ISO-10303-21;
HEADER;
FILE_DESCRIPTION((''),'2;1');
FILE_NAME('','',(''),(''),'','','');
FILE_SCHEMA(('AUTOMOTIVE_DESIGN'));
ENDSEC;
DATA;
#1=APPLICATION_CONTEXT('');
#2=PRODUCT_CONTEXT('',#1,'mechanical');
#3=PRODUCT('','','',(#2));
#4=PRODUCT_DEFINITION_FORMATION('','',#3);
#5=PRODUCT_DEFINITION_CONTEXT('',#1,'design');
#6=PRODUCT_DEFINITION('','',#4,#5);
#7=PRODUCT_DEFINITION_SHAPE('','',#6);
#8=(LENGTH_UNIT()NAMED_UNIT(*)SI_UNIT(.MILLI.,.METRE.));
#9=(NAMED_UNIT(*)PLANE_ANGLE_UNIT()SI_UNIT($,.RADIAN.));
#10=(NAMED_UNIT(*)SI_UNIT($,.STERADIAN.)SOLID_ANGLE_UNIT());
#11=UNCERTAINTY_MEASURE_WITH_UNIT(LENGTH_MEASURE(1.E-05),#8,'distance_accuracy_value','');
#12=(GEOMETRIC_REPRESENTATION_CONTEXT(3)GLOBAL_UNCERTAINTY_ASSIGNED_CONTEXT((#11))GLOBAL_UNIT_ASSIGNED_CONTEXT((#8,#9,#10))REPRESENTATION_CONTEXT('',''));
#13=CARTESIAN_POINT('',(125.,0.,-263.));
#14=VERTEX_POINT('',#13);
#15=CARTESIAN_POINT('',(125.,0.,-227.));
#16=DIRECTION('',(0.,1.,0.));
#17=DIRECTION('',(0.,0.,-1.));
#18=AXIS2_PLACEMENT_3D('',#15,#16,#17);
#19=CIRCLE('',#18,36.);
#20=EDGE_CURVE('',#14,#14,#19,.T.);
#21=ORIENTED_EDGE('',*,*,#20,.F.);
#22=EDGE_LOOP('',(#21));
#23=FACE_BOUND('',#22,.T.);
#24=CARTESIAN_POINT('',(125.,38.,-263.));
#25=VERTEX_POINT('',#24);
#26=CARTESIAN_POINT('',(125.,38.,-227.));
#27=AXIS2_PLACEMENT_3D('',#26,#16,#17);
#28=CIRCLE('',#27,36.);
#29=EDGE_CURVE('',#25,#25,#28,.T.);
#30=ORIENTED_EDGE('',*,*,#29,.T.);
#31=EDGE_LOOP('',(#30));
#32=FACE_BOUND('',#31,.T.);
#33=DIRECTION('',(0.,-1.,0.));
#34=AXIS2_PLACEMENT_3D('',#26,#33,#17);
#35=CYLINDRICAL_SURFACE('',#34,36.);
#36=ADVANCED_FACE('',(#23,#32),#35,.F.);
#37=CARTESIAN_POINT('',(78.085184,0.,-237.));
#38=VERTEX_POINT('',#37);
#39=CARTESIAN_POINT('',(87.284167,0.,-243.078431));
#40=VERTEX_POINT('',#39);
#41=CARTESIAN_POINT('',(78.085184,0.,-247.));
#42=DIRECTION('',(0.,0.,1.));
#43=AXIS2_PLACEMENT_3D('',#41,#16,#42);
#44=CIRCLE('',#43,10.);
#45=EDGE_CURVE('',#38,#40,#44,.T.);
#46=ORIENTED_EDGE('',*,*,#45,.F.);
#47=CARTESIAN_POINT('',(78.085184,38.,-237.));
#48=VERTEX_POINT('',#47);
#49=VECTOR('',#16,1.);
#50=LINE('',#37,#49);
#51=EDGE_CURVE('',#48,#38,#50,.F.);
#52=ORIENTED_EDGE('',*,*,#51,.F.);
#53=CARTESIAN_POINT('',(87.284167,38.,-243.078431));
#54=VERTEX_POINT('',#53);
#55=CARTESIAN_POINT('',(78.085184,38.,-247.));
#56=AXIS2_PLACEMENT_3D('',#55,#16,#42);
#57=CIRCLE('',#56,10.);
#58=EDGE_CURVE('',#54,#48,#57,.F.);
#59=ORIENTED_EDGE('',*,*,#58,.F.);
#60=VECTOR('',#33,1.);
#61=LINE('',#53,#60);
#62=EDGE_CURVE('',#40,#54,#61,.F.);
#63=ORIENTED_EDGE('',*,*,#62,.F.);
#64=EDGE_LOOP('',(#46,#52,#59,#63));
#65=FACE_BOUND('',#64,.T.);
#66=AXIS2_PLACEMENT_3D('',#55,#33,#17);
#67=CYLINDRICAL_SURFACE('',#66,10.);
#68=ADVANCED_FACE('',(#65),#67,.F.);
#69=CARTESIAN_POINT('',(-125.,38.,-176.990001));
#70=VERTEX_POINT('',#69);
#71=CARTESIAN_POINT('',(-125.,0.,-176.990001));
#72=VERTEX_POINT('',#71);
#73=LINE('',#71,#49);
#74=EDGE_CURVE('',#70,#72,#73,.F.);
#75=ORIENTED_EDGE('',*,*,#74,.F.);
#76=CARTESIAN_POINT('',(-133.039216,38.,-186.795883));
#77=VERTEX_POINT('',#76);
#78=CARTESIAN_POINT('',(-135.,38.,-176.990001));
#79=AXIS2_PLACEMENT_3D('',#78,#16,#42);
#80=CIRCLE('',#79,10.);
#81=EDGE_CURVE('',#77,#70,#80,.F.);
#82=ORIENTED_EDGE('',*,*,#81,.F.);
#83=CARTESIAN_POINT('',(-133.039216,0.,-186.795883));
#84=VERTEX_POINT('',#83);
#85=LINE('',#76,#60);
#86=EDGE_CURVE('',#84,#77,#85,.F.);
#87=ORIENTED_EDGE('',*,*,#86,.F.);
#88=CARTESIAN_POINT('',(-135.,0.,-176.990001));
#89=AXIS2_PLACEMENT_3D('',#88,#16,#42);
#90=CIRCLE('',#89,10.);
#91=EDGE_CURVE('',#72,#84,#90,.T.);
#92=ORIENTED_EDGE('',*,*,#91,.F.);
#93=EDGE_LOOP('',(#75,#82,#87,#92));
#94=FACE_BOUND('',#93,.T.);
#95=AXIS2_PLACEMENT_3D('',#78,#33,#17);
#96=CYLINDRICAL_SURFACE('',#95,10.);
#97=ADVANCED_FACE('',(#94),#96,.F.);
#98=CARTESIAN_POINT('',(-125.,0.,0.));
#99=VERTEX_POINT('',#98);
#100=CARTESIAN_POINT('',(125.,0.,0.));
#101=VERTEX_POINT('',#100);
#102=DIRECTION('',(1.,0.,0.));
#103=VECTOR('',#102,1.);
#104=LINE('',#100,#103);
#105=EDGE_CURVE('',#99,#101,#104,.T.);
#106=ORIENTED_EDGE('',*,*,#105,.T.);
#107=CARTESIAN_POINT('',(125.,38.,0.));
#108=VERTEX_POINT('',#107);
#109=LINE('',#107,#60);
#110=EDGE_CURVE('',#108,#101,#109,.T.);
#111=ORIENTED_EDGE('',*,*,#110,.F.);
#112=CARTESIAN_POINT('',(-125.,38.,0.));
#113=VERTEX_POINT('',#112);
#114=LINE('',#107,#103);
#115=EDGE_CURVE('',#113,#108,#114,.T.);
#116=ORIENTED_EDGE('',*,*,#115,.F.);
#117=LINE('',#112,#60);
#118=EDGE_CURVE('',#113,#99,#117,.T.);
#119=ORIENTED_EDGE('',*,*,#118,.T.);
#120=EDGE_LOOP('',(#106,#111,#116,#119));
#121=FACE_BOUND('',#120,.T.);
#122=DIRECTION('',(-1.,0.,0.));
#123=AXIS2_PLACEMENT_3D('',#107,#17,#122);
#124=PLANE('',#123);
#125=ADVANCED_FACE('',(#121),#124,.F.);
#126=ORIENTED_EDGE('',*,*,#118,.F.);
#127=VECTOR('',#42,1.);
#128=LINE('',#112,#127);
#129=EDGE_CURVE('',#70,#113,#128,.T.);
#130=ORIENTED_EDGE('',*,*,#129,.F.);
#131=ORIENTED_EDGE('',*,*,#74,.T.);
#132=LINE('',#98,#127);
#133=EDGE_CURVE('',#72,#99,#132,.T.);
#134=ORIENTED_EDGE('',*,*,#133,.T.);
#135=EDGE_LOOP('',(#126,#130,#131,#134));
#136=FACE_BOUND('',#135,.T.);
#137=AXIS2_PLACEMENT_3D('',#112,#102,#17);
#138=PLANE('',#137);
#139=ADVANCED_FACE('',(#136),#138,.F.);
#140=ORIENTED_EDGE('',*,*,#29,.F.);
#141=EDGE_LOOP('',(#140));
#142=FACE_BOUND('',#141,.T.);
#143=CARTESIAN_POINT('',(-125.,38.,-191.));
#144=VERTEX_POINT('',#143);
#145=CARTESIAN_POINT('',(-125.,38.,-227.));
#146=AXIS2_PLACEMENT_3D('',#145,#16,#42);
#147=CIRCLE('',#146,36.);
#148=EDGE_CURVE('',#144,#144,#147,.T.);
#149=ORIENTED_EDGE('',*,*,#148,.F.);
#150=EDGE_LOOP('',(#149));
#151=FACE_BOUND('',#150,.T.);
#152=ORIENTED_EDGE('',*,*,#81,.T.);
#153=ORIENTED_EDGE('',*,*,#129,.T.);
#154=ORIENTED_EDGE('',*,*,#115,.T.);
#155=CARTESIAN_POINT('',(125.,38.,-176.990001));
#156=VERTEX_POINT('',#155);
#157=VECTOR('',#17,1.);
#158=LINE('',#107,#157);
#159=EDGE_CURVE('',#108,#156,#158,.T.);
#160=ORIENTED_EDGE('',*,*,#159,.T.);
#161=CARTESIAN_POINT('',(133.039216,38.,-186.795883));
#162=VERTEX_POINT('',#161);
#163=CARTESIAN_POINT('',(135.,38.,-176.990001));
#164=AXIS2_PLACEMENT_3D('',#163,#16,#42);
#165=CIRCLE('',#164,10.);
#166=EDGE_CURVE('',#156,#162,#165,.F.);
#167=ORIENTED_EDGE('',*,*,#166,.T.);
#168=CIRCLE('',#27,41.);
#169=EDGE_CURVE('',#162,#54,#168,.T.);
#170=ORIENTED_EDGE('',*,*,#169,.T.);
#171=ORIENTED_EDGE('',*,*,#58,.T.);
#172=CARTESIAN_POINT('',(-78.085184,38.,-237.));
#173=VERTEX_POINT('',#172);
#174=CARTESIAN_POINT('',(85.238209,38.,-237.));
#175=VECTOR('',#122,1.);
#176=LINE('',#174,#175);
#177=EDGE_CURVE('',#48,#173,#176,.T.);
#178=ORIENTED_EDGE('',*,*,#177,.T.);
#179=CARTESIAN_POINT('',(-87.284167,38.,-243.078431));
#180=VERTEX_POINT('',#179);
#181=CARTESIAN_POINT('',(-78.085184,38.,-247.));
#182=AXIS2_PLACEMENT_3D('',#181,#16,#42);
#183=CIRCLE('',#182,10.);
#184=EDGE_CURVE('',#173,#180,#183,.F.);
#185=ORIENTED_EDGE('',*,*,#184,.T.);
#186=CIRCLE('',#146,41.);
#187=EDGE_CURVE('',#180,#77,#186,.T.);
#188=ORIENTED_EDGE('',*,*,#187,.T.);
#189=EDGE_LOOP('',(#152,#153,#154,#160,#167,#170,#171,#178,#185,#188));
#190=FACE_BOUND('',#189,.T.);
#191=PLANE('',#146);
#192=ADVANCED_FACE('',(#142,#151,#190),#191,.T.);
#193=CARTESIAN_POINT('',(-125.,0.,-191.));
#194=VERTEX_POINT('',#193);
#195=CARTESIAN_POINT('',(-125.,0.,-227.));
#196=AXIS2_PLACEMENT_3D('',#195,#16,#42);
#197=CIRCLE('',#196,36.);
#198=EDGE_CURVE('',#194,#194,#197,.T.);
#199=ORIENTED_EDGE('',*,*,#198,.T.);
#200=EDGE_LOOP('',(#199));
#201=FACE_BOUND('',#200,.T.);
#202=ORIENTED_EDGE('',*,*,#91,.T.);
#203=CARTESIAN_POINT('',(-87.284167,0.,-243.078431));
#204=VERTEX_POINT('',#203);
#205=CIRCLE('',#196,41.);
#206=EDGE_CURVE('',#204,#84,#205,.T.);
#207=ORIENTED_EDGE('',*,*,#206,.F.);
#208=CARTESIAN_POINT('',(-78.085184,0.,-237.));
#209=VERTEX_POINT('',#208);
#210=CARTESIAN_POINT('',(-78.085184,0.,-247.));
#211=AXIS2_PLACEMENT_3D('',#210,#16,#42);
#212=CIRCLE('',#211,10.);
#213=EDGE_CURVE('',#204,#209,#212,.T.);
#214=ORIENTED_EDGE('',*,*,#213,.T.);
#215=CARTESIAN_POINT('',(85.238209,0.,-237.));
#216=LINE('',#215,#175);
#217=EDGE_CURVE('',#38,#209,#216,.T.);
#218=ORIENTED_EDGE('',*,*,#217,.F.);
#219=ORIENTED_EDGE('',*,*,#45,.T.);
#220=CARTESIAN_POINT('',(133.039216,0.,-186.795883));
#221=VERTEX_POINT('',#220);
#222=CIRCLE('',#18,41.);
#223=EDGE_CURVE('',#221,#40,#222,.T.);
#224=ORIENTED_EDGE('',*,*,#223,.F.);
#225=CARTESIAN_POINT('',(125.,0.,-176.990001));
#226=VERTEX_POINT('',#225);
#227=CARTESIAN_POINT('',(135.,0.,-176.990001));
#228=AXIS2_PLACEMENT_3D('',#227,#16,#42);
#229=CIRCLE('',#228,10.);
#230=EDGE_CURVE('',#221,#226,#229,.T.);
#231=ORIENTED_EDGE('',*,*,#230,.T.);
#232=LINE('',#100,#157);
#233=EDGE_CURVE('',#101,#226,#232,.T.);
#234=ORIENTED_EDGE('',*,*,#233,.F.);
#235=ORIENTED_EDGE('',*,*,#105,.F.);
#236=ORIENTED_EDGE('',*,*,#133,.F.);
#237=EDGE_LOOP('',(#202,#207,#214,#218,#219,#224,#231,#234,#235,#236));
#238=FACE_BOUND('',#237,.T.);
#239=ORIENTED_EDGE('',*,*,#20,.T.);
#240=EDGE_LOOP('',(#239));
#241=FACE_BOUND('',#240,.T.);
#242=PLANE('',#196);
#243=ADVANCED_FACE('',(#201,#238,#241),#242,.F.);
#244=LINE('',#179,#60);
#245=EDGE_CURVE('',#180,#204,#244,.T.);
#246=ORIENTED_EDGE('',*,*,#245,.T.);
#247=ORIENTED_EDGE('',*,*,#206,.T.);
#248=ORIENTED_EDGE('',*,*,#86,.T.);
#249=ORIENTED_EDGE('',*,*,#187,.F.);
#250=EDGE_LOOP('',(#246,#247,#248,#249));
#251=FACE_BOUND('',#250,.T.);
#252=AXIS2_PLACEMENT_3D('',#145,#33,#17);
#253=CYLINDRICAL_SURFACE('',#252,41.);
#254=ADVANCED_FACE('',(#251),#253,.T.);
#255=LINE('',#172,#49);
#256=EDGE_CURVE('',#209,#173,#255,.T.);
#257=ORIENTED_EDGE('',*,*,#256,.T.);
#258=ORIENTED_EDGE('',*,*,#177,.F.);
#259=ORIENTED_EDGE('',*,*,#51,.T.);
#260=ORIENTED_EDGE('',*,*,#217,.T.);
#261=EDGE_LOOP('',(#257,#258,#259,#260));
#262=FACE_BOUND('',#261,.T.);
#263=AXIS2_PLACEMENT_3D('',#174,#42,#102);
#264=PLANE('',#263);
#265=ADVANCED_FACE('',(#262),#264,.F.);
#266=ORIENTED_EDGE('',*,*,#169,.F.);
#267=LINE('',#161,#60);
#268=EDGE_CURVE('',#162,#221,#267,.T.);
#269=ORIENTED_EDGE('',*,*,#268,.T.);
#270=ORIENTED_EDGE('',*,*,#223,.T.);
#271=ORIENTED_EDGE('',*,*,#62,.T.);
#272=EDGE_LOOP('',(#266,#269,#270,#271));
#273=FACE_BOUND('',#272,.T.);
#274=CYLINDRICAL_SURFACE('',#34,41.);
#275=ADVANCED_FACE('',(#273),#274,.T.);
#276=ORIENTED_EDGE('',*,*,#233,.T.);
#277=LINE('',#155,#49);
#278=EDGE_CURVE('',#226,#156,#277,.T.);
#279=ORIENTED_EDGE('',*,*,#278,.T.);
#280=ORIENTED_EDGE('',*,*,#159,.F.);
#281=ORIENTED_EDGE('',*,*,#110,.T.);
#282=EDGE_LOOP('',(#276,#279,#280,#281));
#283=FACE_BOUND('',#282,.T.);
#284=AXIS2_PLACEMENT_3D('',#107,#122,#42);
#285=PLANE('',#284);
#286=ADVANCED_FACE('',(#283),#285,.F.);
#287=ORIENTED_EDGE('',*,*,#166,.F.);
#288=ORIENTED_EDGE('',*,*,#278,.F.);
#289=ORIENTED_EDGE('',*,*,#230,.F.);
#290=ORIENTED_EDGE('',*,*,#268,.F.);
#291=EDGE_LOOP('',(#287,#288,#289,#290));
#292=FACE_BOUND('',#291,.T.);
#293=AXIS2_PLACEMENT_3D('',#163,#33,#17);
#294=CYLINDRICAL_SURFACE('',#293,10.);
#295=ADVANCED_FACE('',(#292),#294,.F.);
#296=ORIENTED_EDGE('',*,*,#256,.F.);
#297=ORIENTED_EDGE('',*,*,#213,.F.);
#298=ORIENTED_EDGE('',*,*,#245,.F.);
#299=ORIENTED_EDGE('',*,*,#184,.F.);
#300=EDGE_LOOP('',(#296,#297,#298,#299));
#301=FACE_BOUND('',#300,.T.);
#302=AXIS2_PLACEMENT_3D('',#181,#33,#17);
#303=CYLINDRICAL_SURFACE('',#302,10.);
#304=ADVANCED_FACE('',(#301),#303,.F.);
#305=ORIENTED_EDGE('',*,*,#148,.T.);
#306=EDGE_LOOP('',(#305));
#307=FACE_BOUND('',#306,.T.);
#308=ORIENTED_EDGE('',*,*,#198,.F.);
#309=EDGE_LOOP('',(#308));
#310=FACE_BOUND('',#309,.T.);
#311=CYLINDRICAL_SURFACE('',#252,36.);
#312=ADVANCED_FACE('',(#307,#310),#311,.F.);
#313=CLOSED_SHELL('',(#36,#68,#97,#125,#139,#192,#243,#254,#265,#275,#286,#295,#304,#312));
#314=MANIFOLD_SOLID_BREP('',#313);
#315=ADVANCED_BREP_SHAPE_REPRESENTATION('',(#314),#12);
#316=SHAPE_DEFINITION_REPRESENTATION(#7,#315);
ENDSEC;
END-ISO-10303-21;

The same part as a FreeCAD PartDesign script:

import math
import FreeCAD as App
import Part
import Sketcher

V = App.Vector


def edges_at(feature, points):
    """Names of the edges that pass closest to the given points."""
    edges = feature.Shape.Edges
    near = lambda p: min(range(len(edges)), key=lambda i: edges[i].distToShape(Part.Vertex(*p))[0])
    return sorted({f"Edge{near(p) + 1}" for p in points})

doc = App.newDocument("Part")
body = doc.addObject("PartDesign::Body", "Body")

# Sketch on XZ plane
sketch1 = doc.addObject("Sketcher::SketchObject", "Sketch")
body.addObject(sketch1)
sketch1.AttachmentSupport = (doc.XZ_Plane, [""])
sketch1.MapMode = "FlatFace"
sketch1.addGeometry([
    Part.LineSegment(V(-125, 0, 0), V(125, 0, 0)),  # 0
    Part.LineSegment(V(125, 0, 0), V(125, -186, 0)),  # 1
    Part.ArcOfCircle(Part.Circle(V(125, -227, 0), V(0, 0, 1), 41), math.radians(-166), math.radians(90)),  # 2
    Part.LineSegment(V(85, -237, 0), V(-85, -237, 0)),  # 3
    Part.ArcOfCircle(Part.Circle(V(-125, -227, 0), V(0, 0, 1), 41), math.radians(90), math.radians(346)),  # 4
    Part.LineSegment(V(-125, -186, 0), V(-125, 0, 0)),  # 5
    Part.Circle(V(125, -227, 0), V(0, 0, 1), 36),  # 6
    Part.Circle(V(-125, -227, 0), V(0, 0, 1), 36),  # 7
], False)
sketch1.addConstraint([
    Sketcher.Constraint("Coincident", 0, 2, 1, 1),
    Sketcher.Constraint("Coincident", 1, 2, 2, 2),
    Sketcher.Constraint("Coincident", 2, 1, 3, 1),
    Sketcher.Constraint("Coincident", 3, 2, 4, 2),
    Sketcher.Constraint("Coincident", 4, 1, 5, 1),
    Sketcher.Constraint("Coincident", 5, 2, 0, 1),
    Sketcher.Constraint("Horizontal", 0),
    Sketcher.Constraint("Vertical", 1),
    Sketcher.Constraint("Horizontal", 3),
    Sketcher.Constraint("Vertical", 5),
    Sketcher.Constraint("Coincident", 6, 3, 2, 3),
    Sketcher.Constraint("Coincident", 7, 3, 4, 3),
    Sketcher.Constraint("Equal", 2, 4),
    Sketcher.Constraint("Equal", 6, 7),
    Sketcher.Constraint("Symmetric", 0, 2, 5, 2, -1, 1),
    Sketcher.Constraint("Symmetric", 2, 3, 4, 3, -2),
    Sketcher.Constraint("Vertical", 6, 3, 0, 2),
    Sketcher.Constraint("Diameter", 6, 72.0),
    Sketcher.Constraint("Radius", 2, 41.0),
    Sketcher.Constraint("DistanceX", 0, 1, 0, 2, 250.0),
    Sketcher.Constraint("DistanceY", 1, 2, 1, 1, 186.0),
    Sketcher.Constraint("DistanceY", 2, 1, -1, 1, 237.0),
])
pad1 = doc.addObject("PartDesign::Pad", "Pad")
body.addObject(pad1)
pad1.Profile = sketch1
pad1.Length = 38
pad1.Reversed = True
doc.recompute()

fillet = doc.addObject("PartDesign::Fillet", "Fillet")
body.addObject(fillet)
fillet.Base = (pad1, edges_at(pad1, [
    (-125, 19, -186),
    (-85.238, 19, -237),
    (85.238, 19, -237),
    (125, 19, -186),
]))
fillet.Radius = 10

doc.recompute()
